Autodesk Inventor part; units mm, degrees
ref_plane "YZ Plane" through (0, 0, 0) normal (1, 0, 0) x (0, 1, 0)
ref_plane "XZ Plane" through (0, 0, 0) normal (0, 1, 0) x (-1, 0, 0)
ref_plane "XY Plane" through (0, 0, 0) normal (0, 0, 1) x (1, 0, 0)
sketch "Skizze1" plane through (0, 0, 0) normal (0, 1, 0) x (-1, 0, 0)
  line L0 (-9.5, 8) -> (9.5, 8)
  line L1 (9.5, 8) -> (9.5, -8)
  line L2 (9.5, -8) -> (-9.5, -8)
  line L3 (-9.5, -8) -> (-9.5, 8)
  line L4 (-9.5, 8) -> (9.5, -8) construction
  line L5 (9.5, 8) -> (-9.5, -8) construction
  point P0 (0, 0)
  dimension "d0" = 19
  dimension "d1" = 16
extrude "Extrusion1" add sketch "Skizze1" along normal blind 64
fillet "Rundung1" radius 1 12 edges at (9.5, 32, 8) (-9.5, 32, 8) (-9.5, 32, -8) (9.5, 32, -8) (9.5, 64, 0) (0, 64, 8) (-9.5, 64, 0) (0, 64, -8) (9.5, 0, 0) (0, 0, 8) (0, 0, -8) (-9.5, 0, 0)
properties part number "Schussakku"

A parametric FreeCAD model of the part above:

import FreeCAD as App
import Part
import Sketcher

V = App.Vector

doc = App.newDocument("Part")
params = doc.addObject("Spreadsheet::Sheet", "Params")
for row, (alias, value) in enumerate([
    ("sketch1_width", "19 mm"),
    ("sketch1_height", "16 mm"),
    ("pad1_length", "64 mm"),
    ("fillet_radius", "1 mm"),
], start=1):
    params.set(f"A{row}", alias)
    params.set(f"B{row}", "=" + value)
    params.setAlias(f"B{row}", alias)

body = doc.addObject("PartDesign::Body", "Body")

sketch1 = body.newObject("Sketcher::SketchObject", "Sketch")
sketch1.AttachmentSupport = (doc.getObject("XZ_Plane"), [""])
sketch1.MapMode = "FlatFace"
sketch1.addGeometry(Part.LineSegment(V(-9.5, 8, 0), V(9.5, 8, 0)), False)
sketch1.addGeometry(Part.LineSegment(V(9.5, 8, 0), V(9.5, -8, 0)), False)
sketch1.addGeometry(Part.LineSegment(V(9.5, -8, 0), V(-9.5, -8, 0)), False)
sketch1.addGeometry(Part.LineSegment(V(-9.5, -8, 0), V(-9.5, 8, 0)), False)
sketch1.addConstraint(Sketcher.Constraint("Coincident", 0, 2, 1, 1))
sketch1.addConstraint(Sketcher.Constraint("Coincident", 1, 2, 2, 1))
sketch1.addConstraint(Sketcher.Constraint("Coincident", 2, 2, 3, 1))
sketch1.addConstraint(Sketcher.Constraint("Coincident", 3, 2, 0, 1))
sketch1.addConstraint(Sketcher.Constraint("Horizontal", 0))
sketch1.addConstraint(Sketcher.Constraint("Vertical", 1))
sketch1.addConstraint(Sketcher.Constraint("Horizontal", 2))
sketch1.addConstraint(Sketcher.Constraint("Vertical", 3))
sketch1.addConstraint(Sketcher.Constraint("Symmetric", 0, 2, 2, 2, -1, 1))
sketch1.addConstraint(Sketcher.Constraint("DistanceX", 0, 1, 0, 2, 19.0))
sketch1.addConstraint(Sketcher.Constraint("DistanceY", 1, 2, 1, 1, 16.0))
sketch1.setExpression("Constraints[9]", "Params.sketch1_width")
sketch1.setExpression("Constraints[10]", "Params.sketch1_height")
pad1 = body.newObject("PartDesign::Pad", "Pad")
pad1.Profile = sketch1
pad1.setExpression("Length", "Params.pad1_length")
pad1.Reversed = True
doc.recompute()

fillet = body.newObject("PartDesign::Fillet", "Fillet")
fillet.Base = (pad1, ["Edge1"])
fillet.UseAllEdges = True
fillet.setExpression("Radius", "Params.fillet_radius")

doc.recompute()
